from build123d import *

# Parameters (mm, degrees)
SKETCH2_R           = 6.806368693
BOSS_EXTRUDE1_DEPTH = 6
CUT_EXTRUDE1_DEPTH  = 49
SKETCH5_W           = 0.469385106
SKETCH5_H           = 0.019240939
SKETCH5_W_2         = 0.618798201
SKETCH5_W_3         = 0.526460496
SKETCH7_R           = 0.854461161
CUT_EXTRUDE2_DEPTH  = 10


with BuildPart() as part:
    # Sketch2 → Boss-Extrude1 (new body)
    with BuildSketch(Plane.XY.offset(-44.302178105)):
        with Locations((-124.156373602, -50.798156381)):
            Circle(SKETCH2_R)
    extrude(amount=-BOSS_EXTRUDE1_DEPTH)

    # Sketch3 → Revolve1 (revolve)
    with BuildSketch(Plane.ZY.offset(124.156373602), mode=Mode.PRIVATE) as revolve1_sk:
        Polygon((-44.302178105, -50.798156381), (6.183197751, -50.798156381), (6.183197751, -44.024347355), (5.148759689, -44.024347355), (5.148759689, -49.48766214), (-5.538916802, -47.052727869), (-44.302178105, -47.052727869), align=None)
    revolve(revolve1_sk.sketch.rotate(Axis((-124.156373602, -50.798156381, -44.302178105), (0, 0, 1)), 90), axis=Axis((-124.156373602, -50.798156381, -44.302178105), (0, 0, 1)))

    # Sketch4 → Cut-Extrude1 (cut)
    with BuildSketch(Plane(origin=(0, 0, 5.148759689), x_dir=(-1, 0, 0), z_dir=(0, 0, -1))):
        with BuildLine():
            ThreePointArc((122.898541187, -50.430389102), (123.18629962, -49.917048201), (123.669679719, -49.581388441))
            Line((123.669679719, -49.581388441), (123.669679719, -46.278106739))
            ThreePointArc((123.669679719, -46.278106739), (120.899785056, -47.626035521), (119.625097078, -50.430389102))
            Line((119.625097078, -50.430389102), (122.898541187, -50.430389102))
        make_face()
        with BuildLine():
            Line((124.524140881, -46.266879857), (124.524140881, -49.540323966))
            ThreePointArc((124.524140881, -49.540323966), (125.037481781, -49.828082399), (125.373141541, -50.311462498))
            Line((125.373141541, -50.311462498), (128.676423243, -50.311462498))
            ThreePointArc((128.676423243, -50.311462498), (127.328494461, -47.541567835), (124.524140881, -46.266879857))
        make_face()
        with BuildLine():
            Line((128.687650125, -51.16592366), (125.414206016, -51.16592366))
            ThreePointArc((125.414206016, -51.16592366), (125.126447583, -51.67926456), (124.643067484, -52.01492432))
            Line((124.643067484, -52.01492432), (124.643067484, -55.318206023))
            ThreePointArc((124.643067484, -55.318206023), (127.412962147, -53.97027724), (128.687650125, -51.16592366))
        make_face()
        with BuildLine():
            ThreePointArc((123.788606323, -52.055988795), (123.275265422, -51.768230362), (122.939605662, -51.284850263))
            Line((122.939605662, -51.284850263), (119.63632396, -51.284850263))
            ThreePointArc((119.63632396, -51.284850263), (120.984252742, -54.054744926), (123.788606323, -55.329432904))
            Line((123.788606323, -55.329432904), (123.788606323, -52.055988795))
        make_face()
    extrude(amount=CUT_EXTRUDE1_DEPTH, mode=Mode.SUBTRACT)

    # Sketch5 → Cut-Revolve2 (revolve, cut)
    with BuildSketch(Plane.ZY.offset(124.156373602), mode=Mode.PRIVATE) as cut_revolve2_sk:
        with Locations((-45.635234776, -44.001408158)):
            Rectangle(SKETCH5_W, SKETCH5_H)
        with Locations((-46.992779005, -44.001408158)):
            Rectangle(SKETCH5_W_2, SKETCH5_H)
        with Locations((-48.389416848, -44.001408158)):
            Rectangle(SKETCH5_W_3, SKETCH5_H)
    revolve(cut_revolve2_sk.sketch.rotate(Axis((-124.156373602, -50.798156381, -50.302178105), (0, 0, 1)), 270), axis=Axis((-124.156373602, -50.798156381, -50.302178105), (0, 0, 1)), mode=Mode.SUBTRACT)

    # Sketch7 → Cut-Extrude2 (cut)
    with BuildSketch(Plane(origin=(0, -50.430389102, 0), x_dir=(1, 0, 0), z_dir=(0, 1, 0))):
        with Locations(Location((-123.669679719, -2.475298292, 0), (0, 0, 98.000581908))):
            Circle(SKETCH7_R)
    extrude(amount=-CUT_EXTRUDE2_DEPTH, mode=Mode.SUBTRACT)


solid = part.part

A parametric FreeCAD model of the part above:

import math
import FreeCAD as App
import Part
import Sketcher


def add_polygon(sketch, points):
    """Adds a closed chain of lines whose ends are joined by coincident constraints."""
    first, n = sketch.GeometryCount, len(points)
    for a, b in zip(points, points[1:] + points[:1]):
        sketch.addGeometry(Part.LineSegment(App.Vector(*a, 0), App.Vector(*b, 0)), False)
    for i in range(n):
        sketch.addConstraint(Sketcher.Constraint("Coincident", first + i, 2, first + (i + 1) % n, 1))

doc = App.newDocument("Part")
params = doc.addObject("Spreadsheet::Sheet", "Params")
for row, (alias, value) in enumerate([
    ("pad1_length", "6 mm"),
    ("revolution_angle", "360 deg"),
    ("pocket1_length", "49 mm"),
    ("groove_angle", "360 deg"),
    ("pocket2_length", "10 mm"),
], start=1):
    params.set(f"A{row}", alias)
    params.set(f"B{row}", "=" + value)
    params.setAlias(f"B{row}", alias)

body = doc.addObject("PartDesign::Body", "Body")

# Sketch on XY plane
sketch1 = body.newObject("Sketcher::SketchObject", "Sketch")
sketch1.AttachmentSupport = (doc.getObject("XY_Plane"), [""])
sketch1.MapMode = "FlatFace"
sketch1.AttachmentOffset = App.Placement(App.Vector(0, 0, -44.302178), App.Rotation())
sketch1.addGeometry(Part.Circle(App.Vector(-124, -51, 0), App.Vector(0, 0, 1), 7), False)
sketch1.addConstraint(Sketcher.Constraint("Diameter", 0, 13.612737))
sketch1.addConstraint(Sketcher.Constraint("DistanceX", 0, 3, -1, 1, 124.156374))
sketch1.addConstraint(Sketcher.Constraint("DistanceY", 0, 3, -1, 1, 50.798156))
pad1 = body.newObject("PartDesign::Pad", "Pad")
pad1.Profile = sketch1
pad1.setExpression("Length", "Params.pad1_length")
pad1.Reversed = True

# Sketch on YZ plane
sketch2 = body.newObject("Sketcher::SketchObject", "Sketch001")
sketch2.AttachmentSupport = (doc.getObject("YZ_Plane"), [""])
sketch2.MapMode = "FlatFace"
sketch2.AttachmentOffset = App.Placement(App.Vector(0, 0, -124.156374), App.Rotation())
add_polygon(sketch2, [(-50.8, -44.3), (-50.8, 6.2), (-44, 6.2), (-44, 5.1), (-49.5, 5.1), (-47.1, -5.5), (-47.1, -44.3)])  # lines 0-6
sketch2.addGeometry(Part.LineSegment(App.Vector(-50.8, -44.3, 0), App.Vector(-50.8, 6.2, 0)), True)  # axis
sketch2.addConstraint(Sketcher.Constraint("Vertical", 0))
sketch2.addConstraint(Sketcher.Constraint("Horizontal", 1))
sketch2.addConstraint(Sketcher.Constraint("Vertical", 2))
sketch2.addConstraint(Sketcher.Constraint("Horizontal", 3))
sketch2.addConstraint(Sketcher.Constraint("Vertical", 5))
sketch2.addConstraint(Sketcher.Constraint("Horizontal", 6))
sketch2.addConstraint(Sketcher.Constraint("Vertical", 7))
sketch2.addConstraint(Sketcher.Constraint("Coincident", 7, 1, 6, 2))
sketch2.addConstraint(Sketcher.Constraint("Horizontal", 1, 2, 7, 2))
sketch2.addConstraint(Sketcher.Constraint("DistanceX", 1, 1, 1, 2, 6.773809))
sketch2.addConstraint(Sketcher.Constraint("DistanceX", 6, 2, 6, 1, 3.745429))
sketch2.addConstraint(Sketcher.Constraint("DistanceY", 2, 2, 2, 1, 1.034438))
sketch2.addConstraint(Sketcher.Constraint("DistanceY", 5, 2, 5, 1, 38.763261))
sketch2.addConstraint(Sketcher.Constraint("Distance", 4, 10.961539))
sketch2.addConstraint(Sketcher.Constraint("DistanceX", 3, 2, 3, 1, 5.463315))
sketch2.addConstraint(Sketcher.Constraint("DistanceY", -1, 1, 2, 2, 5.14876))
sketch2.addConstraint(Sketcher.Constraint("DistanceX", 0, 2, -1, 1, 50.798156))
revolution = body.newObject("PartDesign::Revolution", "Revolution")
revolution.Profile = sketch2
revolution.ReferenceAxis = (sketch2, ["Axis0"])
revolution.setExpression("Angle", "Params.revolution_angle")

# Sketch on XY plane
sketch3 = body.newObject("Sketcher::SketchObject", "Sketch002")
sketch3.AttachmentSupport = (doc.getObject("XY_Plane"), [""])
sketch3.MapMode = "FlatFace"
sketch3.AttachmentOffset = App.Placement(App.Vector(0, 0, 5.14876), App.Rotation())
sketch3.addGeometry(Part.ArcOfCircle(Part.Circle(App.Vector(-124.2, -50.8, 0), App.Vector(0, 0, 1), 1.3), math.radians(16), math.radians(68)), False)
sketch3.addGeometry(Part.LineSegment(App.Vector(-123.7, -49.6, 0), App.Vector(-123.7, -46.3, 0)), False)
sketch3.addGeometry(Part.ArcOfCircle(Part.Circle(App.Vector(-124.2, -50.8, 0), App.Vector(0, 0, 1), 4.5), math.radians(5), math.radians(84)), False)
sketch3.addGeometry(Part.LineSegment(App.Vector(-119.6, -50.4, 0), App.Vector(-122.9, -50.4, 0)), False)
sketch3.addGeometry(Part.LineSegment(App.Vector(-124.5, -46.3, 0), App.Vector(-124.5, -49.5, 0)), False)
sketch3.addGeometry(Part.ArcOfCircle(Part.Circle(App.Vector(-124.2, -50.8, 0), App.Vector(0, 0, 1), 1.3), math.radians(106), math.radians(158)), False)
sketch3.addGeometry(Part.LineSegment(App.Vector(-125.4, -50.3, 0), App.Vector(-128.7, -50.3, 0)), False)
sketch3.addGeometry(Part.ArcOfCircle(Part.Circle(App.Vector(-124.2, -50.8, 0), App.Vector(0, 0, 1), 4.5), math.radians(95), math.radians(174)), False)
sketch3.addGeometry(Part.LineSegment(App.Vector(-128.7, -51.2, 0), App.Vector(-125.4, -51.2, 0)), False)
sketch3.addGeometry(Part.ArcOfCircle(Part.Circle(App.Vector(-124.2, -50.8, 0), App.Vector(0, 0, 1), 1.3), math.radians(-164), math.radians(-112)), False)
sketch3.addGeometry(Part.LineSegment(App.Vector(-124.6, -52, 0), App.Vector(-124.6, -55.3, 0)), False)
sketch3.addGeometry(Part.ArcOfCircle(Part.Circle(App.Vector(-124.2, -50.8, 0), App.Vector(0, 0, 1), 4.5), math.radians(-175), math.radians(-96)), False)
sketch3.addGeometry(Part.ArcOfCircle(Part.Circle(App.Vector(-124.2, -50.8, 0), App.Vector(0, 0, 1), 1.3), math.radians(-74), math.radians(-22)), False)
sketch3.addGeometry(Part.LineSegment(App.Vector(-122.9, -51.3, 0), App.Vector(-119.6, -51.3, 0)), False)
sketch3.addGeometry(Part.ArcOfCircle(Part.Circle(App.Vector(-124.2, -50.8, 0), App.Vector(0, 0, 1), 4.5), math.radians(-85), math.radians(-6)), False)
sketch3.addGeometry(Part.LineSegment(App.Vector(-123.8, -55.3, 0), App.Vector(-123.8, -52.1, 0)), False)
sketch3.addConstraint(Sketcher.Constraint("Coincident", 0, 2, 1, 1))
sketch3.addConstraint(Sketcher.Constraint("Coincident", 1, 2, 2, 2))
sketch3.addConstraint(Sketcher.Constraint("Coincident", 2, 1, 3, 1))
sketch3.addConstraint(Sketcher.Constraint("Coincident", 3, 2, 0, 1))
sketch3.addConstraint(Sketcher.Constraint("Coincident", 4, 2, 5, 1))
sketch3.addConstraint(Sketcher.Constraint("Coincident", 5, 2, 6, 1))
sketch3.addConstraint(Sketcher.Constraint("Coincident", 6, 2, 7, 2))
sketch3.addConstraint(Sketcher.Constraint("Coincident", 7, 1, 4, 1))
sketch3.addConstraint(Sketcher.Constraint("Coincident", 8, 2, 9, 1))
sketch3.addConstraint(Sketcher.Constraint("Coincident", 9, 2, 10, 1))
sketch3.addConstraint(Sketcher.Constraint("Coincident", 10, 2, 11, 2))
sketch3.addConstraint(Sketcher.Constraint("Coincident", 11, 1, 8, 1))
sketch3.addConstraint(Sketcher.Constraint("Coincident", 12, 2, 13, 1))
sketch3.addConstraint(Sketcher.Constraint("Coincident", 13, 2, 14, 2))
sketch3.addConstraint(Sketcher.Constraint("Coincident", 14, 1, 15, 1))
sketch3.addConstraint(Sketcher.Constraint("Coincident", 15, 2, 12, 1))
sketch3.addConstraint(Sketcher.Constraint("Vertical", 1))
sketch3.addConstraint(Sketcher.Constraint("Horizontal", 3))
sketch3.addConstraint(Sketcher.Constraint("Vertical", 4))
sketch3.addConstraint(Sketcher.Constraint("Horizontal", 6))
sketch3.addConstraint(Sketcher.Constraint("Horizontal", 8))
sketch3.addConstraint(Sketcher.Constraint("Vertical", 10))
sketch3.addConstraint(Sketcher.Constraint("Horizontal", 13))
sketch3.addConstraint(Sketcher.Constraint("Vertical", 15))
sketch3.addConstraint(Sketcher.Constraint("Coincident", 2, 3, 0, 3))
sketch3.addConstraint(Sketcher.Constraint("Coincident", 5, 3, 0, 3))
sketch3.addConstraint(Sketcher.Constraint("Coincident", 7, 3, 0, 3))
sketch3.addConstraint(Sketcher.Constraint("Coincident", 9, 3, 0, 3))
sketch3.addConstraint(Sketcher.Constraint("Coincident", 11, 3, 0, 3))
sketch3.addConstraint(Sketcher.Constraint("Coincident", 12, 3, 0, 3))
sketch3.addConstraint(Sketcher.Constraint("Coincident", 14, 3, 0, 3))
sketch3.addConstraint(Sketcher.Constraint("Equal", 0, 5))
sketch3.addConstraint(Sketcher.Constraint("Equal", 2, 7))
sketch3.addConstraint(Sketcher.Constraint("Equal", 5, 9))
sketch3.addConstraint(Sketcher.Constraint("Equal", 7, 11))
sketch3.addConstraint(Sketcher.Constraint("Equal", 9, 12))
sketch3.addConstraint(Sketcher.Constraint("Equal", 11, 14))
sketch3.addConstraint(Sketcher.Constraint("Equal", 3, 8))
sketch3.addConstraint(Sketcher.Constraint("Equal", 6, 13))
sketch3.addConstraint(Sketcher.Constraint("Equal", 13, 1))
sketch3.addConstraint(Sketcher.Constraint("Equal", 8, 4))
sketch3.addConstraint(Sketcher.Constraint("Equal", 1, 10))
sketch3.addConstraint(Sketcher.Constraint("Equal", 4, 15))
sketch3.addConstraint(Sketcher.Constraint("Radius", 0, 1.310494))
sketch3.addConstraint(Sketcher.Constraint("Radius", 2, 4.546176))
sketch3.addConstraint(Sketcher.Constraint("DistanceY", 2, 1, 0, 2, 0.849001))
sketch3.addConstraint(Sketcher.Constraint("DistanceX", 6, 2, 6, 1, 3.303282))
sketch3.addConstraint(Sketcher.Constraint("DistanceX", 0, 2, -1, 1, 123.66968))
sketch3.addConstraint(Sketcher.Constraint("DistanceY", 0, 2, -1, 1, 49.581388))
pocket1 = body.newObject("PartDesign::Pocket", "Pocket")
pocket1.Profile = sketch3
pocket1.setExpression("Length", "Params.pocket1_length")

# Sketch on YZ plane
sketch4 = body.newObject("Sketcher::SketchObject", "Sketch003")
sketch4.AttachmentSupport = (doc.getObject("YZ_Plane"), [""])
sketch4.MapMode = "FlatFace"
sketch4.AttachmentOffset = App.Placement(App.Vector(0, 0, -124.156374), App.Rotation())
add_polygon(sketch4, [(-43.992, -45.87), (-44.011, -45.87), (-44.011, -45.401), (-43.992, -45.401)])  # lines 0-3
add_polygon(sketch4, [(-43.992, -47.302), (-44.011, -47.302), (-44.011, -46.683), (-43.992, -46.683)])  # lines 4-7
add_polygon(sketch4, [(-43.992, -48.653), (-44.011, -48.653), (-44.011, -48.126), (-43.992, -48.126)])  # lines 8-11
sketch4.addGeometry(Part.LineSegment(App.Vector(-50.798, -48.653, 0), App.Vector(-50.798, -45.401, 0)), True)  # axis
sketch4.addConstraint(Sketcher.Constraint("Horizontal", 0))
sketch4.addConstraint(Sketcher.Constraint("Vertical", 1))
sketch4.addConstraint(Sketcher.Constraint("Horizontal", 2))
sketch4.addConstraint(Sketcher.Constraint("Vertical", 3))
sketch4.addConstraint(Sketcher.Constraint("Horizontal", 4))
sketch4.addConstraint(Sketcher.Constraint("Vertical", 5))
sketch4.addConstraint(Sketcher.Constraint("Horizontal", 6))
sketch4.addConstraint(Sketcher.Constraint("Vertical", 7))
sketch4.addConstraint(Sketcher.Constraint("Horizontal", 8))
sketch4.addConstraint(Sketcher.Constraint("Vertical", 9))
sketch4.addConstraint(Sketcher.Constraint("Horizontal", 10))
sketch4.addConstraint(Sketcher.Constraint("Vertical", 11))
sketch4.addConstraint(Sketcher.Constraint("Vertical", 12))
sketch4.addConstraint(Sketcher.Constraint("Horizontal", 11, 2, 12, 1))
sketch4.addConstraint(Sketcher.Constraint("Horizontal", 2, 2, 12, 2))
sketch4.addConstraint(Sketcher.Constraint("Vertical", 1, 2, 4, 2))
sketch4.addConstraint(Sketcher.Constraint("Vertical", 3, 2, 6, 2))
sketch4.addConstraint(Sketcher.Constraint("Vertical", 5, 2, 8, 2))
sketch4.addConstraint(Sketcher.Constraint("Vertical", 7, 2, 10, 2))
sketch4.addConstraint(Sketcher.Constraint("DistanceY", 5, 1, 5, 2, 0.618798))
sketch4.addConstraint(Sketcher.Constraint("DistanceX", 0, 2, 0, 1, 0.019241))
sketch4.addConstraint(Sketcher.Constraint("DistanceY", 9, 1, 9, 2, 0.52646))
sketch4.addConstraint(Sketcher.Constraint("DistanceY", 1, 1, 1, 2, 0.469385))
sketch4.addConstraint(Sketcher.Constraint("DistanceY", 12, 1, 12, 2, 3.252105))
sketch4.addConstraint(Sketcher.Constraint("DistanceX", 0, 2, -1, 1, 44.011029))
sketch4.addConstraint(Sketcher.Constraint("DistanceY", 4, 2, -1, 1, 47.302178))
sketch4.addConstraint(Sketcher.Constraint("DistanceY", 4, 2, 0, 2, 1.432251))
sketch4.addConstraint(Sketcher.Constraint("DistanceX", 12, 1, 11, 2, 6.806369))
groove = body.newObject("PartDesign::Groove", "Groove")
groove.Profile = sketch4
groove.ReferenceAxis = (sketch4, ["Axis0"])
groove.setExpression("Angle", "Params.groove_angle")

# Sketch on XZ plane
sketch5 = body.newObject("Sketcher::SketchObject", "Sketch004")
sketch5.AttachmentSupport = (doc.getObject("XZ_Plane"), [""])
sketch5.MapMode = "FlatFace"
sketch5.AttachmentOffset = App.Placement(App.Vector(0, 0, 50.430389), App.Rotation())
sketch5.addGeometry(Part.Circle(App.Vector(-123.7, 2.5, 0), App.Vector(0, 0, 1), 0.9), False)
sketch5.addConstraint(Sketcher.Constraint("Diameter", 0, 1.708922))
sketch5.addConstraint(Sketcher.Constraint("DistanceY", -1, 1, 0, 3, 2.475298))
sketch5.addConstraint(Sketcher.Constraint("DistanceX", 0, 3, -1, 1, 123.66968))
pocket2 = body.newObject("PartDesign::Pocket", "Pocket001")
pocket2.Profile = sketch5
pocket2.setExpression("Length", "Params.pocket2_length")
pocket2.Reversed = True

doc.recompute()
